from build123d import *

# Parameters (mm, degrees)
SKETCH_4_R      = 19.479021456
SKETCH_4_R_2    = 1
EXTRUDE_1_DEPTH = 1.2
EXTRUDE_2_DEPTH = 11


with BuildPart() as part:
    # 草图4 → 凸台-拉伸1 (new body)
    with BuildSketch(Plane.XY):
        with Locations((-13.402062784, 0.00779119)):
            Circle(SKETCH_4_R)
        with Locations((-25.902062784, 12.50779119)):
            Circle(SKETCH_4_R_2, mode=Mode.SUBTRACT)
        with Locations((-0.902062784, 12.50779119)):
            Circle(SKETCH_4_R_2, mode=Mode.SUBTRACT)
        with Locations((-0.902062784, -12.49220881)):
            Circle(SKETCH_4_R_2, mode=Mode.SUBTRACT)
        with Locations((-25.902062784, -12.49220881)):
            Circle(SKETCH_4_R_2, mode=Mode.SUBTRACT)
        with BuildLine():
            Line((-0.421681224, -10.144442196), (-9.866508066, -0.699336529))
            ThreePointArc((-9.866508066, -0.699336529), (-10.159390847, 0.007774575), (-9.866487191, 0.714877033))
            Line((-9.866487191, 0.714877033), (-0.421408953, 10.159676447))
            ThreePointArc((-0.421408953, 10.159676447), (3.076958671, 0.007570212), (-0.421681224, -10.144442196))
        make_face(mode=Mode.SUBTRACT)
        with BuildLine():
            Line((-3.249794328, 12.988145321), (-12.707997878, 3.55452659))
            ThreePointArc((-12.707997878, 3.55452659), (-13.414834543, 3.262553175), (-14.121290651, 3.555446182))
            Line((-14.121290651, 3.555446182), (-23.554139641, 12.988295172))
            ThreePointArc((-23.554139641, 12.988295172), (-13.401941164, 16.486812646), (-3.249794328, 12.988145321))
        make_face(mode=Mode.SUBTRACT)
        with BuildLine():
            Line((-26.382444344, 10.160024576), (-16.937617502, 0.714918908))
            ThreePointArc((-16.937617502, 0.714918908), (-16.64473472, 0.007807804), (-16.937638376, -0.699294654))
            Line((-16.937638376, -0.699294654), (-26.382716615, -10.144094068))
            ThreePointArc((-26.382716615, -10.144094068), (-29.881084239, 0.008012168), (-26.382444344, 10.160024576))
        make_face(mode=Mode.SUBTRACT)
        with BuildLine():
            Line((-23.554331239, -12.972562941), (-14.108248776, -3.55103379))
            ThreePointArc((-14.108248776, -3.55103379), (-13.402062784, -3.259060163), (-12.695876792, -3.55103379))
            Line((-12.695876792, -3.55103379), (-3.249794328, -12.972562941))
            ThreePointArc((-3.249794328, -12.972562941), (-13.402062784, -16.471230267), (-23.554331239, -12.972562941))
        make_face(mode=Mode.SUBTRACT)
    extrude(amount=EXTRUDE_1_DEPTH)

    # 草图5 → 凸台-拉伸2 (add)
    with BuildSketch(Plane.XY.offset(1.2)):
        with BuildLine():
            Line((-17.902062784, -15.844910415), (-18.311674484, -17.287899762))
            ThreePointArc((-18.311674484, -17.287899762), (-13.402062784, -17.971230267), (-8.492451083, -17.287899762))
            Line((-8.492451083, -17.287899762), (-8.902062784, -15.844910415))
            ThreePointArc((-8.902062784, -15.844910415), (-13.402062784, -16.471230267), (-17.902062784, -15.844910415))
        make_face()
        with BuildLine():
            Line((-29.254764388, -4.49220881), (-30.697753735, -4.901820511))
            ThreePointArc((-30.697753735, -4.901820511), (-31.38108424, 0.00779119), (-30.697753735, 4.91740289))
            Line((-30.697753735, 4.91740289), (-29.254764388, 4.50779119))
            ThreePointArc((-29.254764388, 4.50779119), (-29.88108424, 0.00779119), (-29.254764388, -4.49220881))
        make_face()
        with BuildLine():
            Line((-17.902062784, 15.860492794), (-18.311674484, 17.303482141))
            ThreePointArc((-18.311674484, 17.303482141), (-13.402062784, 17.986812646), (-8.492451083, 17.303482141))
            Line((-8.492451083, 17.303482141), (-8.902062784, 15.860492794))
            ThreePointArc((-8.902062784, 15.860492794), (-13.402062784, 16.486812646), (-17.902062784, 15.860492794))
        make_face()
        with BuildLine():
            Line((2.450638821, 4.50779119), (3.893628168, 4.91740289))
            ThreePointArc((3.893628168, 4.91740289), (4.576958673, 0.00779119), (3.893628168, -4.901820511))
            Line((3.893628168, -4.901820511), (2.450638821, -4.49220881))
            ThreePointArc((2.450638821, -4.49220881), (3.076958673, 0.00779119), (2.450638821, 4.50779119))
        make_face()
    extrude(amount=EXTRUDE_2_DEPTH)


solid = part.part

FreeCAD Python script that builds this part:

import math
import FreeCAD as App
import Part
import Sketcher
from FreeCAD import Vector
Q = App.Units.Quantity

doc = App.newDocument("Part")
body = doc.addObject("PartDesign::Body", "Body")

# Sketch on XY plane
sketch1 = doc.addObject("Sketcher::SketchObject", "Sketch")
body.addObject(sketch1)
sketch1.AttachmentSupport = (doc.XY_Plane, [""])
sketch1.MapMode = "FlatFace"
sketch1.addGeometry(Part.Circle(Vector(-13.402063, 0.007791, 0), Vector(0, 0, 1), 19.479021), False)
sketch1.addGeometry(Part.Circle(Vector(-25.902063, -12.492209, 0), Vector(0, 0, 1), 1), False)
sketch1.addGeometry(Part.ArcOfCircle(Part.Circle(Vector(-13.402063, 0.007791, 0), Vector(0, 0, 1), 16.479021), math.radians(-128.029876), math.radians(-51.970124)), False)
sketch1.addGeometry(Part.LineSegment(Vector(-23.554331, -12.972563, 0), Vector(-14.108249, -3.551034, 0)), False)
sketch1.addGeometry(Part.ArcOfCircle(Part.Circle(Vector(-13.402063, -4.25906, 0), Vector(0, 0, 1), 1), math.radians(45.074562), math.radians(134.925438)), False)
sketch1.addGeometry(Part.LineSegment(Vector(-12.695877, -3.551034, 0), Vector(-3.249794, -12.972563, 0)), False)
sketch1.addGeometry(Part.Circle(Vector(-0.902063, -12.492209, 0), Vector(0, 0, 1), 1), False)
sketch1.addGeometry(Part.ArcOfCircle(Part.Circle(Vector(-13.402063, 0.007791, 0), Vector(0, 0, 1), 16.479021), math.radians(-38.029721), math.radians(38.028185)), False)
sketch1.addGeometry(Part.LineSegment(Vector(-0.421681, -10.144442, 0), Vector(-9.866508, -0.699337, 0)), False)
sketch1.addGeometry(Part.ArcOfCircle(Part.Circle(Vector(-9.159391, 0.00776, 0), Vector(0, 0, 1), 1), math.radians(134.999154), math.radians(224.999154)), False)
sketch1.addGeometry(Part.LineSegment(Vector(-9.866487, 0.714877, 0), Vector(-0.421409, 10.159676, 0)), False)
sketch1.addGeometry(Part.ArcOfCircle(Part.Circle(Vector(-13.402063, 0.007791, 0), Vector(0, 0, 1), 16.479021), math.radians(141.970279), math.radians(218.028185)), False)
sketch1.addGeometry(Part.LineSegment(Vector(-26.382444, 10.160025, 0), Vector(-16.937618, 0.714919, 0)), False)
sketch1.addGeometry(Part.ArcOfCircle(Part.Circle(Vector(-17.644735, 0.007823, 0), Vector(0, 0, 1), 1), math.radians(-45.000846), math.radians(44.999154)), False)
sketch1.addGeometry(Part.LineSegment(Vector(-16.937638, -0.699295, 0), Vector(-26.382717, -10.144094, 0)), False)
sketch1.addGeometry(Part.Circle(Vector(-25.902063, 12.507791, 0), Vector(0, 0, 1), 1), False)
sketch1.addGeometry(Part.ArcOfCircle(Part.Circle(Vector(-13.402063, 0.007791, 0), Vector(0, 0, 1), 16.479021), math.radians(51.970124), math.radians(128.02903)), False)
sketch1.addGeometry(Part.LineSegment(Vector(-3.249794, 12.988145, 0), Vector(-12.707998, 3.554527, 0)), False)
sketch1.addGeometry(Part.ArcOfCircle(Part.Circle(Vector(-13.414184, 4.262553, 0), Vector(0, 0, 1), 1), math.radians(-135), math.radians(-45.074562)), False)
sketch1.addGeometry(Part.LineSegment(Vector(-14.121291, 3.555446, 0), Vector(-23.55414, 12.988295, 0)), False)
sketch1.addGeometry(Part.Circle(Vector(-0.902063, 12.507791, 0), Vector(0, 0, 1), 1), False)
sketch1.addConstraint(Sketcher.Constraint("Coincident", 2, 1, 3, 1))
sketch1.addConstraint(Sketcher.Constraint("Tangent", 3, 2, 4, 2))
sketch1.addConstraint(Sketcher.Constraint("Tangent", 4, 1, 5, 1))
sketch1.addConstraint(Sketcher.Constraint("Coincident", 5, 2, 2, 2))
sketch1.addConstraint(Sketcher.Constraint("Coincident", 7, 1, 8, 1))
sketch1.addConstraint(Sketcher.Constraint("Tangent", 8, 2, 9, 2))
sketch1.addConstraint(Sketcher.Constraint("Tangent", 9, 1, 10, 1))
sketch1.addConstraint(Sketcher.Constraint("Coincident", 10, 2, 7, 2))
sketch1.addConstraint(Sketcher.Constraint("Coincident", 11, 1, 12, 1))
sketch1.addConstraint(Sketcher.Constraint("Tangent", 12, 2, 13, 2))
sketch1.addConstraint(Sketcher.Constraint("Tangent", 13, 1, 14, 1))
sketch1.addConstraint(Sketcher.Constraint("Coincident", 14, 2, 11, 2))
sketch1.addConstraint(Sketcher.Constraint("Coincident", 16, 1, 17, 1))
sketch1.addConstraint(Sketcher.Constraint("Tangent", 17, 2, 18, 2))
sketch1.addConstraint(Sketcher.Constraint("Tangent", 18, 1, 19, 1))
sketch1.addConstraint(Sketcher.Constraint("Coincident", 19, 2, 16, 2))
sketch1.addConstraint(Sketcher.Constraint("Coincident", 2, 3, 0, 3))
sketch1.addConstraint(Sketcher.Constraint("Coincident", 7, 3, 0, 3))
sketch1.addConstraint(Sketcher.Constraint("Coincident", 11, 3, 0, 3))
sketch1.addConstraint(Sketcher.Constraint("Coincident", 16, 3, 0, 3))
sketch1.addConstraint(Sketcher.Constraint("Equal", 1, 4))
sketch1.addConstraint(Sketcher.Constraint("Equal", 4, 6))
sketch1.addConstraint(Sketcher.Constraint("Equal", 2, 7))
sketch1.addConstraint(Sketcher.Constraint("Equal", 6, 9))
sketch1.addConstraint(Sketcher.Constraint("Equal", 7, 11))
sketch1.addConstraint(Sketcher.Constraint("Equal", 9, 13))
sketch1.addConstraint(Sketcher.Constraint("Equal", 13, 15))
sketch1.addConstraint(Sketcher.Constraint("Equal", 11, 16))
sketch1.addConstraint(Sketcher.Constraint("Equal", 15, 18))
sketch1.addConstraint(Sketcher.Constraint("Equal", 18, 20))
sketch1.addConstraint(Sketcher.Constraint("Perpendicular", 8, 10))
sketch1.addConstraint(Sketcher.Constraint("Perpendicular", 10, 12))
sketch1.addConstraint(Sketcher.Constraint("Perpendicular", 12, 14))
sketch1.addConstraint(Sketcher.Constraint("Parallel", 3, 17))
sketch1.addConstraint(Sketcher.Constraint("Horizontal", 1, 3, 6, 3))
sketch1.addConstraint(Sketcher.Constraint("Horizontal", 15, 3, 20, 3))
sketch1.addConstraint(Sketcher.Constraint("Horizontal", 3, 2, 4, 1))
sketch1.addConstraint(Sketcher.Constraint("Horizontal", 2, 1, 5, 2))
sketch1.addConstraint(Sketcher.Constraint("Vertical", 1, 3, 15, 3))
sketch1.addConstraint(Sketcher.Constraint("Vertical", 6, 3, 20, 3))
sketch1.addConstraint(Sketcher.Constraint("Vertical", 5, 2, 16, 1))
sketch1.addConstraint(Sketcher.Constraint("Equal", 8, 12))
sketch1.addConstraint(Sketcher.Constraint("Equal", 10, 14))
sketch1.addConstraint(Sketcher.Constraint("Diameter", 1, Q("2 mm")))
sketch1.addConstraint(Sketcher.Constraint("Angle", 19, Q("135 deg")))
sketch1.addConstraint(Sketcher.Constraint("DistanceX", 1, 3, 6, 3, Q("25 mm")))
sketch1.addConstraint(Sketcher.Constraint("DistanceX", 1, 3, 0, 3, Q("12.5 mm")))
sketch1.addConstraint(Sketcher.Constraint("DistanceY", 1, 3, 0, 3, Q("12.5 mm")))
sketch1.addConstraint(Sketcher.Constraint("DistanceY", 0, 3, 15, 3, Q("12.5 mm")))
sketch1.addConstraint(Sketcher.Constraint("Radius", 2, Q("16.479021 mm")))
sketch1.addConstraint(Sketcher.Constraint("Diameter", 0, Q("38.958043 mm")))
sketch1.addConstraint(Sketcher.Constraint("Distance", 8, Q("13.357199 mm")))
sketch1.addConstraint(Sketcher.Constraint("DistanceY", 9, 1, 10, 2, Q("9.444799 mm")))
sketch1.addConstraint(Sketcher.Constraint("DistanceX", 8, 2, 10, 2, Q("9.445099 mm")))
sketch1.addConstraint(Sketcher.Constraint("DistanceY", -1, 1, 0, 3, Q("0.007791 mm")))
sketch1.addConstraint(Sketcher.Constraint("DistanceY", 4, 3, -1, 1, Q("4.25906 mm")))
sketch1.addConstraint(Sketcher.Constraint("DistanceX", 9, 3, -1, 1, Q("9.159391 mm")))
sketch1.addConstraint(Sketcher.Constraint("DistanceX", 2, 1, -1, 1, Q("23.554331 mm")))
sketch1.addConstraint(Sketcher.Constraint("DistanceX", 18, 1, -1, 1, Q("14.121291 mm")))
pad1 = doc.addObject("PartDesign::Pad", "Pad")
body.addObject(pad1)
pad1.Profile = sketch1
pad1.Length = 1.2

# Sketch on XY plane
sketch2 = doc.addObject("Sketcher::SketchObject", "Sketch001")
body.addObject(sketch2)
sketch2.AttachmentSupport = (doc.XY_Plane, [""])
sketch2.MapMode = "FlatFace"
sketch2.AttachmentOffset = App.Placement(Vector(0, 0, 1.2), App.Rotation())
sketch2.addGeometry(Part.LineSegment(Vector(-17.902063, -15.84491, 0), Vector(-18.311674, -17.2879, 0)), False)
sketch2.addGeometry(Part.ArcOfCircle(Part.Circle(Vector(-13.402063, 0.007791, 0), Vector(0, 0, 1), 17.979021), math.radians(-105.847298), math.radians(-74.152702)), False)
sketch2.addGeometry(Part.LineSegment(Vector(-8.492451, -17.2879, 0), Vector(-8.902063, -15.84491, 0)), False)
sketch2.addGeometry(Part.ArcOfCircle(Part.Circle(Vector(-13.402063, 0.007791, 0), Vector(0, 0, 1), 16.479021), math.radians(-105.847298), math.radians(-74.152702)), False)
sketch2.addGeometry(Part.LineSegment(Vector(-30.697754, -4.901821, 0), Vector(-29.254764, -4.492209, 0)), False)
sketch2.addGeometry(Part.ArcOfCircle(Part.Circle(Vector(-13.402063, 0.007791, 0), Vector(0, 0, 1), 16.479021), math.radians(164.152702), math.radians(195.847298)), False)
sketch2.addGeometry(Part.LineSegment(Vector(-29.254764, 4.507791, 0), Vector(-30.697754, 4.917403, 0)), False)
sketch2.addGeometry(Part.ArcOfCircle(Part.Circle(Vector(-13.402063, 0.007791, 0), Vector(0, 0, 1), 17.979021), math.radians(164.152702), math.radians(195.847298)), False)
sketch2.addGeometry(Part.LineSegment(Vector(-18.311674, 17.303482, 0), Vector(-17.902063, 15.860493, 0)), False)
sketch2.addGeometry(Part.ArcOfCircle(Part.Circle(Vector(-13.402063, 0.007791, 0), Vector(0, 0, 1), 16.479021), math.radians(74.152702), math.radians(105.847298)), False)
sketch2.addGeometry(Part.LineSegment(Vector(-8.902063, 15.860493, 0), Vector(-8.492451, 17.303482, 0)), False)
sketch2.addGeometry(Part.ArcOfCircle(Part.Circle(Vector(-13.402063, 0.007791, 0), Vector(0, 0, 1), 17.979021), math.radians(74.152702), math.radians(105.847298)), False)
sketch2.addGeometry(Part.LineSegment(Vector(3.893628, 4.917403, 0), Vector(2.450639, 4.507791, 0)), False)
sketch2.addGeometry(Part.ArcOfCircle(Part.Circle(Vector(-13.402063, 0.007791, 0), Vector(0, 0, 1), 16.479021), math.radians(-15.847298), math.radians(15.847298)), False)
sketch2.addGeometry(Part.LineSegment(Vector(2.450639, -4.492209, 0), Vector(3.893628, -4.901821, 0)), False)
sketch2.addGeometry(Part.ArcOfCircle(Part.Circle(Vector(-13.402063, 0.007791, 0), Vector(0, 0, 1), 17.979021), math.radians(-15.847298), math.radians(15.847298)), False)
sketch2.addConstraint(Sketcher.Constraint("Coincident", 0, 2, 1, 1))
sketch2.addConstraint(Sketcher.Constraint("Coincident", 1, 2, 2, 1))
sketch2.addConstraint(Sketcher.Constraint("Coincident", 2, 2, 3, 2))
sketch2.addConstraint(Sketcher.Constraint("Coincident", 3, 1, 0, 1))
sketch2.addConstraint(Sketcher.Constraint("Coincident", 4, 2, 5, 2))
sketch2.addConstraint(Sketcher.Constraint("Coincident", 5, 1, 6, 1))
sketch2.addConstraint(Sketcher.Constraint("Coincident", 6, 2, 7, 1))
sketch2.addConstraint(Sketcher.Constraint("Coincident", 7, 2, 4, 1))
sketch2.addConstraint(Sketcher.Constraint("Coincident", 8, 2, 9, 2))
sketch2.addConstraint(Sketcher.Constraint("Coincident", 9, 1, 10, 1))
sketch2.addConstraint(Sketcher.Constraint("Coincident", 10, 2, 11, 1))
sketch2.addConstraint(Sketcher.Constraint("Coincident", 11, 2, 8, 1))
sketch2.addConstraint(Sketcher.Constraint("Coincident", 12, 2, 13, 2))
sketch2.addConstraint(Sketcher.Constraint("Coincident", 13, 1, 14, 1))
sketch2.addConstraint(Sketcher.Constraint("Coincident", 14, 2, 15, 1))
sketch2.addConstraint(Sketcher.Constraint("Coincident", 15, 2, 12, 1))
sketch2.addConstraint(Sketcher.Constraint("Coincident", 3, 3, 1, 3))
sketch2.addConstraint(Sketcher.Constraint("Coincident", 5, 3, 1, 3))
sketch2.addConstraint(Sketcher.Constraint("Coincident", 7, 3, 1, 3))
sketch2.addConstraint(Sketcher.Constraint("Coincident", 9, 3, 1, 3))
sketch2.addConstraint(Sketcher.Constraint("Coincident", 11, 3, 1, 3))
sketch2.addConstraint(Sketcher.Constraint("Coincident", 13, 3, 1, 3))
sketch2.addConstraint(Sketcher.Constraint("Coincident", 15, 3, 1, 3))
sketch2.addConstraint(Sketcher.Constraint("Equal", 3, 5))
sketch2.addConstraint(Sketcher.Constraint("Equal", 1, 7))
sketch2.addConstraint(Sketcher.Constraint("Equal", 5, 9))
sketch2.addConstraint(Sketcher.Constraint("Equal", 7, 11))
sketch2.addConstraint(Sketcher.Constraint("Equal", 9, 13))
sketch2.addConstraint(Sketcher.Constraint("Equal", 11, 15))
sketch2.addConstraint(Sketcher.Constraint("Perpendicular", 2, 4))
sketch2.addConstraint(Sketcher.Constraint("Perpendicular", 0, 6))
sketch2.addConstraint(Sketcher.Constraint("Perpendicular", 4, 8))
sketch2.addConstraint(Sketcher.Constraint("Perpendicular", 6, 10))
sketch2.addConstraint(Sketcher.Constraint("Perpendicular", 8, 12))
sketch2.addConstraint(Sketcher.Constraint("Perpendicular", 10, 14))
sketch2.addConstraint(Sketcher.Constraint("Horizontal", 0, 2, 1, 2))
sketch2.addConstraint(Sketcher.Constraint("Horizontal", 2, 2, 3, 1))
sketch2.addConstraint(Sketcher.Constraint("Horizontal", 8, 2, 9, 1))
sketch2.addConstraint(Sketcher.Constraint("Horizontal", 5, 1, 12, 2))
sketch2.addConstraint(Sketcher.Constraint("Horizontal", 4, 2, 13, 1))
sketch2.addConstraint(Sketcher.Constraint("Vertical", 4, 2, 5, 1))
sketch2.addConstraint(Sketcher.Constraint("Vertical", 3, 1, 8, 2))
sketch2.addConstraint(Sketcher.Constraint("DistanceX", 3, 1, 2, 2, Q("9 mm")))
sketch2.addConstraint(Sketcher.Constraint("DistanceY", 4, 2, 5, 1, Q("9 mm")))
sketch2.addConstraint(Sketcher.Constraint("Distance", 0, Q("1.5 mm")))
sketch2.addConstraint(Sketcher.Constraint("Radius", 1, Q("17.979021 mm")))
sketch2.addConstraint(Sketcher.Constraint("DistanceY", 0, 2, -1, 1, Q("17.2879 mm")))
sketch2.addConstraint(Sketcher.Constraint("DistanceY", -1, 1, 1, 3, Q("0.007791 mm")))
sketch2.addConstraint(Sketcher.Constraint("DistanceX", 1, 2, -1, 1, Q("8.492451 mm")))
pad2 = doc.addObject("PartDesign::Pad", "Pad001")
body.addObject(pad2)
pad2.Profile = sketch2
pad2.Length = 11

doc.recompute()
